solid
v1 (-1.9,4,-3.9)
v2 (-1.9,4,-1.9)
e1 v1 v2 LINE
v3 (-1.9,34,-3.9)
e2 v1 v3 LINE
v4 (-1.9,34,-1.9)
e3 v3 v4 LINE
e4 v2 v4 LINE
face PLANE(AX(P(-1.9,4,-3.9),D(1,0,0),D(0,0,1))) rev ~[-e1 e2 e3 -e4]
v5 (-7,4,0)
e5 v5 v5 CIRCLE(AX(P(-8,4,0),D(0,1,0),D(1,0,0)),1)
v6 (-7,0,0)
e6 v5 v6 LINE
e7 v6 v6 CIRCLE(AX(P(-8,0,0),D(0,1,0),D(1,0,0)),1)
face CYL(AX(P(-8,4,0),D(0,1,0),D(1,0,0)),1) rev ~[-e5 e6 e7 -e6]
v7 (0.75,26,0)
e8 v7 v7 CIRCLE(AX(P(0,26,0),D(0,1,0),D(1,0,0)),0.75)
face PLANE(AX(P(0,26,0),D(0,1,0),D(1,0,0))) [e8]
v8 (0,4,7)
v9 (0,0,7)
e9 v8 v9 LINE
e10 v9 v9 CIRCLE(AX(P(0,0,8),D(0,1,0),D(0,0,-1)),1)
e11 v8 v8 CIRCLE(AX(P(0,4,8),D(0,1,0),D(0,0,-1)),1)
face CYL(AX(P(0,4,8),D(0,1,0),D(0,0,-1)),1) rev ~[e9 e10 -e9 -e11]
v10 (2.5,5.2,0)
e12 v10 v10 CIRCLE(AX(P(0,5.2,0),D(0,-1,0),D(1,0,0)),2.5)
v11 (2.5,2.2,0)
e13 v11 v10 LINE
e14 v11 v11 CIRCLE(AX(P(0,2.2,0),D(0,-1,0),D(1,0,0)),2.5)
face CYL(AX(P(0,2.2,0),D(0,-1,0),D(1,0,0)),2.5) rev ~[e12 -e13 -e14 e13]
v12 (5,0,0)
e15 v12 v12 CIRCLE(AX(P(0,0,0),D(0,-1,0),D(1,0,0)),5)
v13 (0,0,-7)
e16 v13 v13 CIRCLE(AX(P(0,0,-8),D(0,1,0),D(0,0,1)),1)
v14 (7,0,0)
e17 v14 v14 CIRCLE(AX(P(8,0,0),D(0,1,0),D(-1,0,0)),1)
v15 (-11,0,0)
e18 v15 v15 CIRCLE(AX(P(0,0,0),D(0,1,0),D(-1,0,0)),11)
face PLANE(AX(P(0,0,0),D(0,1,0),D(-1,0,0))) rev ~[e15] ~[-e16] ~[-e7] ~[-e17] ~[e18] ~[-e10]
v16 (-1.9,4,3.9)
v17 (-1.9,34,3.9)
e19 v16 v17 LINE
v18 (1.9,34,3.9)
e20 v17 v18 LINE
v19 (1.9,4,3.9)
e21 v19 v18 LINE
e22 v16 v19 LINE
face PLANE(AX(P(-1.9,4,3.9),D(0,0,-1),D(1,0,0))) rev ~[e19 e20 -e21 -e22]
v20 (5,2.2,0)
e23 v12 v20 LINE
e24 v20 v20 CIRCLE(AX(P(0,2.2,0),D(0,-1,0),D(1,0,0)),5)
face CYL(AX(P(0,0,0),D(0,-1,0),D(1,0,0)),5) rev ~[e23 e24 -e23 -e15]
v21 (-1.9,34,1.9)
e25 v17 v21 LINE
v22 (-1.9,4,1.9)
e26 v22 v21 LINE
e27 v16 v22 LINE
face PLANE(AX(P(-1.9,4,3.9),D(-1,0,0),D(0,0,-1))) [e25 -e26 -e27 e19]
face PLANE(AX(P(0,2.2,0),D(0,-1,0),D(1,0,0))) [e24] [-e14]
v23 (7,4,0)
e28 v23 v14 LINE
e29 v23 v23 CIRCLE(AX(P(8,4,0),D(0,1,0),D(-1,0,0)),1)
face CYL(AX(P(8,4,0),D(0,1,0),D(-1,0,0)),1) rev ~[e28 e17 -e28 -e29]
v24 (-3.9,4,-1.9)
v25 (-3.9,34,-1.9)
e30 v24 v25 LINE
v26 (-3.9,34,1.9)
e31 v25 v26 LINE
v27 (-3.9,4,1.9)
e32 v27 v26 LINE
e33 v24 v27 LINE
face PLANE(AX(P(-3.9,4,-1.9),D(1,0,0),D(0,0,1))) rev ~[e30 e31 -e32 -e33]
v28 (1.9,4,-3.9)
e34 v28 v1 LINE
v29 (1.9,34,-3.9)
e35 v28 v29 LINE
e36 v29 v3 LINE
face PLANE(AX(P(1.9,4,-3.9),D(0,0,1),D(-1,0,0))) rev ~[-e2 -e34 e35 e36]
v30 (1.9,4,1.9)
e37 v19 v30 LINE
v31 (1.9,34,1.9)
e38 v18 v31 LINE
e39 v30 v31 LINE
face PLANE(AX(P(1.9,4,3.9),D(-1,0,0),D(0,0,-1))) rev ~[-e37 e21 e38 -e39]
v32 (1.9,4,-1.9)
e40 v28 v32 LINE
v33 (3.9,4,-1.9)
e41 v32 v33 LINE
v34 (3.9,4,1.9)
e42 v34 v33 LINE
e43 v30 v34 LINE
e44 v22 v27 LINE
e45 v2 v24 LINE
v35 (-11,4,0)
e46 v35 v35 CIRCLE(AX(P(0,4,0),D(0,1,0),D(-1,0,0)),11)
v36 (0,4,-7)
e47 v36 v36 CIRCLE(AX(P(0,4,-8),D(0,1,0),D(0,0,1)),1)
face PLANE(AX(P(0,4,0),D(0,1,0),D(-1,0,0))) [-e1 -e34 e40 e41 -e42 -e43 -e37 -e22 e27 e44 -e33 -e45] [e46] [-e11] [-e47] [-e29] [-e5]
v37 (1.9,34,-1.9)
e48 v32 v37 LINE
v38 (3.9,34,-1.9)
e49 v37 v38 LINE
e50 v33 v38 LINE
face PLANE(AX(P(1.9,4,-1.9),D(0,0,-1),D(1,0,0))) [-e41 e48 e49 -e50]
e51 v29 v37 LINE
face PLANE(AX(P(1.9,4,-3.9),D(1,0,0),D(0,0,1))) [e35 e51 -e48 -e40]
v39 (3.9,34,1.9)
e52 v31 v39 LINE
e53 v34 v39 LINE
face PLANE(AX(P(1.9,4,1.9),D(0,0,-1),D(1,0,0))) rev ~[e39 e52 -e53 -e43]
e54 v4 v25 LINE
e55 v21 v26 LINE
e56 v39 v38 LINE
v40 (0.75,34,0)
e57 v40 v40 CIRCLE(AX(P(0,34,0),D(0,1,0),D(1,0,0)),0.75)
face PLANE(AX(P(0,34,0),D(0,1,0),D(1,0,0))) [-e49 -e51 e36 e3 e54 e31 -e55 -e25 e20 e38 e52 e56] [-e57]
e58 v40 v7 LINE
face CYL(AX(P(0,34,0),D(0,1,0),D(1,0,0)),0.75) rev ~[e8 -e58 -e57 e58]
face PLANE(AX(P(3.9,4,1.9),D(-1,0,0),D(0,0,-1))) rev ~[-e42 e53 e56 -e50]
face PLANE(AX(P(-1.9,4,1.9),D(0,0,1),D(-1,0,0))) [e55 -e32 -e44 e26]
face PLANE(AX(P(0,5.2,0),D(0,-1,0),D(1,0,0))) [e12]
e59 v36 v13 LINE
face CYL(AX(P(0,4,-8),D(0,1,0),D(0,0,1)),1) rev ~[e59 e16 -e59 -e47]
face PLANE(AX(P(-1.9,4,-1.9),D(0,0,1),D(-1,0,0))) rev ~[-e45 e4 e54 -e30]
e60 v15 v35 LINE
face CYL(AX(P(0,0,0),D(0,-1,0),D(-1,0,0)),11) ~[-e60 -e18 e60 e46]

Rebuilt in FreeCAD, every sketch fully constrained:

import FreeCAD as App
import Part
import Sketcher

V = App.Vector
Q = App.Units.Quantity


def add_polygon(sketch, points):
    """Adds a closed chain of lines whose ends are joined by coincident constraints."""
    first, n = sketch.GeometryCount, len(points)
    for a, b in zip(points, points[1:] + points[:1]):
        sketch.addGeometry(Part.LineSegment(App.Vector(*a, 0), App.Vector(*b, 0)), False)
    for i in range(n):
        sketch.addConstraint(Sketcher.Constraint("Coincident", first + i, 2, first + (i + 1) % n, 1))

doc = App.newDocument("Part")
body = doc.addObject("PartDesign::Body", "Body")

# Sketch on XZ plane
sketch1 = body.newObject("Sketcher::SketchObject", "Sketch")
sketch1.AttachmentSupport = (doc.getObject("XZ_Plane"), [""])
sketch1.MapMode = "FlatFace"
sketch1.addGeometry(Part.Circle(V(0, 0, 0), V(0, 0, 1), 11), False)
sketch1.addConstraint([
    Sketcher.Constraint("Coincident", 0, 3, -1, 1),
    Sketcher.Constraint("Diameter", 0, Q("22 mm")),
])
pad1 = body.newObject("PartDesign::Pad", "Pad")
pad1.Profile = sketch1
pad1.Length = 4
pad1.Reversed = True

# Sketch on XZ plane
sketch2 = body.newObject("Sketcher::SketchObject", "Sketch001")
sketch2.AttachmentSupport = (doc.getObject("XZ_Plane"), [""])
sketch2.MapMode = "FlatFace"
sketch2.AttachmentOffset = App.Placement(V(0, 0, -4), App.Rotation())
sketch2.addGeometry(Part.Circle(V(-8, 0, 0), V(0, 0, 1), 1), False)
sketch2.addConstraint([
    Sketcher.Constraint("PointOnObject", 0, 3, -1),
    Sketcher.Constraint("Diameter", 0, Q("2 mm")),
    Sketcher.Constraint("DistanceX", 0, 3, -1, 1, Q("8 mm")),
])
pocket1 = body.newObject("PartDesign::Pocket", "Pocket")
pocket1.Profile = sketch2
pocket1.Length = 10
pocket1.Reversed = True
doc.recompute()

polarpattern = body.newObject("PartDesign::PolarPattern", "PolarPattern")
polarpattern.Originals = [pocket1]
polarpattern.Axis = (doc.getObject("Y_Axis"), [""])
polarpattern.Angle = 360
polarpattern.Occurrences = 4
body.Tip = polarpattern

# Sketch on XZ plane
sketch3 = body.newObject("Sketcher::SketchObject", "Sketch002")
sketch3.AttachmentSupport = (doc.getObject("XZ_Plane"), [""])
sketch3.MapMode = "FlatFace"
sketch3.AttachmentOffset = App.Placement(V(0, 0, -4), App.Rotation())
add_polygon(sketch3, [(1.9, -1.9), (1.9, -3.9), (-1.9, -3.9), (-1.9, -1.9), (-3.9, -1.9), (-3.9, 1.9), (-1.9, 1.9), (-1.9, 3.9), (1.9, 3.9), (1.9, 1.9), (3.9, 1.9), (3.9, -1.9)])  # lines 0-11
sketch3.addConstraint([
    Sketcher.Constraint("Vertical", 0),
    Sketcher.Constraint("Horizontal", 1),
    Sketcher.Constraint("Vertical", 2),
    Sketcher.Constraint("Horizontal", 3),
    Sketcher.Constraint("Vertical", 4),
    Sketcher.Constraint("Horizontal", 5),
    Sketcher.Constraint("Vertical", 6),
    Sketcher.Constraint("Horizontal", 7),
    Sketcher.Constraint("Vertical", 8),
    Sketcher.Constraint("Horizontal", 9),
    Sketcher.Constraint("Vertical", 10),
    Sketcher.Constraint("Horizontal", 11),
    Sketcher.Constraint("Symmetric", 0, 2, 6, 2, -1, 1),
    Sketcher.Constraint("Symmetric", 2, 2, 8, 2, -1, 1),
    Sketcher.Constraint("Symmetric", 4, 2, 10, 2, -1, 1),
    Sketcher.Constraint("Symmetric", 5, 2, 8, 2, -2),
    Sketcher.Constraint("Equal", 11, 0),
    Sketcher.Constraint("Equal", 7, 4),
    Sketcher.Constraint("DistanceX", 3, 2, 3, 1, Q("2 mm")),
    Sketcher.Constraint("DistanceY", 1, 2, 6, 2, Q("7.8 mm")),
])
pad2 = body.newObject("PartDesign::Pad", "Pad001")
pad2.Profile = sketch3
pad2.Length = 30
pad2.Reversed = True

# Sketch on XZ plane
sketch4 = body.newObject("Sketcher::SketchObject", "Sketch003")
sketch4.AttachmentSupport = (doc.getObject("XZ_Plane"), [""])
sketch4.MapMode = "FlatFace"
sketch4.AttachmentOffset = App.Placement(V(0, 0, -34), App.Rotation())
sketch4.addGeometry(Part.Circle(V(0, 0, 0), V(0, 0, 1), 0.8), False)
sketch4.addConstraint([
    Sketcher.Constraint("Coincident", 0, 3, -1, 1),
    Sketcher.Constraint("Diameter", 0, Q("1.5 mm")),
])
pocket2 = body.newObject("PartDesign::Pocket", "Pocket001")
pocket2.Profile = sketch4
pocket2.Length = 8
pocket2.Reversed = True

# Sketch on XZ plane
sketch5 = body.newObject("Sketcher::SketchObject", "Sketch004")
sketch5.AttachmentSupport = (doc.getObject("XZ_Plane"), [""])
sketch5.MapMode = "FlatFace"
sketch5.addGeometry(Part.Circle(V(0, 0, 0), V(0, 0, 1), 5), False)
sketch5.addConstraint([
    Sketcher.Constraint("Coincident", 0, 3, -1, 1),
    Sketcher.Constraint("Diameter", 0, Q("10 mm")),
])
pocket3 = body.newObject("PartDesign::Pocket", "Pocket002")
pocket3.Profile = sketch5
pocket3.Length = 2.2

# Sketch on XZ plane
sketch6 = body.newObject("Sketcher::SketchObject", "Sketch005")
sketch6.AttachmentSupport = (doc.getObject("XZ_Plane"), [""])
sketch6.MapMode = "FlatFace"
sketch6.AttachmentOffset = App.Placement(V(0, 0, -2.2), App.Rotation())
sketch6.addGeometry(Part.Circle(V(0, 0, 0), V(0, 0, 1), 2.5), False)
sketch6.addConstraint([
    Sketcher.Constraint("Coincident", 0, 3, -1, 1),
    Sketcher.Constraint("Diameter", 0, Q("5 mm")),
])
pocket4 = body.newObject("PartDesign::Pocket", "Pocket003")
pocket4.Profile = sketch6
pocket4.Length = 3

doc.recompute()
